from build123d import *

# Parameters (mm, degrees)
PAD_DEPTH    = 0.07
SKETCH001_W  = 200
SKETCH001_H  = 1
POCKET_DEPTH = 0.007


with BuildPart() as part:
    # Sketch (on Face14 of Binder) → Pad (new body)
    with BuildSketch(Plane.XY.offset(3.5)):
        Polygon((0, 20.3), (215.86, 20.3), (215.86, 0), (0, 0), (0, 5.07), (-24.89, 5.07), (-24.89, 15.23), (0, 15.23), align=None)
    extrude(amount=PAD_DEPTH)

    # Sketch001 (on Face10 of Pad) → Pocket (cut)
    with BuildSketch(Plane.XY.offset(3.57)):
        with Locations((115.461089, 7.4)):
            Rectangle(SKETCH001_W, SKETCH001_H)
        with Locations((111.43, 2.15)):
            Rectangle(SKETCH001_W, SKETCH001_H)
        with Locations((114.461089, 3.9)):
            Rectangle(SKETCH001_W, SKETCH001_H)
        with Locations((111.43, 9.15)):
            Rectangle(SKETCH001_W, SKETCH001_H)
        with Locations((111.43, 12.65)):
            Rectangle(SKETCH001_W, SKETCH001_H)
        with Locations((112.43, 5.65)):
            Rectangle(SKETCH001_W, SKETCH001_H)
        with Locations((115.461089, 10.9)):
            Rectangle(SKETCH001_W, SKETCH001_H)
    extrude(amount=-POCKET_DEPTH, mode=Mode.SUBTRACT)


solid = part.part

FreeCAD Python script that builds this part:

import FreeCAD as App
import Part
import Sketcher
from FreeCAD import Vector


def add_polygon(sketch, points):
    """Adds a closed chain of lines whose ends are joined by coincident constraints."""
    first, n = sketch.GeometryCount, len(points)
    for a, b in zip(points, points[1:] + points[:1]):
        sketch.addGeometry(Part.LineSegment(App.Vector(*a, 0), App.Vector(*b, 0)), False)
    for i in range(n):
        sketch.addConstraint(Sketcher.Constraint("Coincident", first + i, 2, first + (i + 1) % n, 1))

doc = App.newDocument("Part")
body = doc.addObject("PartDesign::Body", "Body")

sketch1 = doc.addObject("Sketcher::SketchObject", "Sketch")
body.addObject(sketch1)
sketch1.AttachmentSupport = (doc.XY_Plane, [""])
sketch1.MapMode = "FlatFace"
sketch1.AttachmentOffset = App.Placement(Vector(0, 0, 3.5), App.Rotation())
add_polygon(sketch1, [(215.86, 20.3), (0, 20.3), (0, 15.23), (-24.89, 15.23), (-24.89, 5.07), (0, 5.07), (0, 0), (215.86, 0)])
sketch1.addConstraint([
    Sketcher.Constraint("Horizontal", 0),
    Sketcher.Constraint("Vertical", 1),
    Sketcher.Constraint("Horizontal", 2),
    Sketcher.Constraint("Vertical", 3),
    Sketcher.Constraint("Horizontal", 4),
    Sketcher.Constraint("Vertical", 5),
    Sketcher.Constraint("Horizontal", 6),
    Sketcher.Constraint("Vertical", 7),
    Sketcher.Constraint("Coincident", 5, 2, -1, 1),
    Sketcher.Constraint("PointOnObject", 0, 2, -2),
    Sketcher.Constraint("Equal", 1, 5),
    Sketcher.Constraint("DistanceY", 7, 1, 7, 2, 20.3),
    Sketcher.Constraint("DistanceX", 0, 2, 0, 1, 215.86),
    Sketcher.Constraint("DistanceX", 2, 2, 2, 1, 24.89),
    Sketcher.Constraint("DistanceY", 1, 2, 1, 1, 5.07),
])
pad1 = doc.addObject("PartDesign::Pad", "Pad")
body.addObject(pad1)
pad1.Profile = sketch1
pad1.Length = 0.07

sketch2 = doc.addObject("Sketcher::SketchObject", "Sketch001")
body.addObject(sketch2)
sketch2.AttachmentSupport = (doc.XY_Plane, [""])
sketch2.MapMode = "FlatFace"
sketch2.AttachmentOffset = App.Placement(Vector(0, 0, 3.57), App.Rotation())
add_polygon(sketch2, [(15.461089, 7.9), (15.461089, 6.9), (215.461089, 6.9), (215.461089, 7.9)])
add_polygon(sketch2, [(11.43, 2.65), (11.43, 1.65), (211.43, 1.65), (211.43, 2.65)])
add_polygon(sketch2, [(14.461089, 4.4), (14.461089, 3.4), (214.461089, 3.4), (214.461089, 4.4)])
add_polygon(sketch2, [(11.43, 9.65), (11.43, 8.65), (211.43, 8.65), (211.43, 9.65)])
add_polygon(sketch2, [(11.43, 13.15), (11.43, 12.15), (211.43, 12.15), (211.43, 13.15)])
add_polygon(sketch2, [(12.43, 6.15), (12.43, 5.15), (212.43, 5.15), (212.43, 6.15)])
add_polygon(sketch2, [(15.461089, 11.4), (15.461089, 10.4), (215.461089, 10.4), (215.461089, 11.4)])
sketch2.addConstraint([
    Sketcher.Constraint("Vertical", 0),
    Sketcher.Constraint("Horizontal", 1),
    Sketcher.Constraint("Vertical", 2),
    Sketcher.Constraint("Horizontal", 3),
    Sketcher.Constraint("Vertical", 4),
    Sketcher.Constraint("Horizontal", 5),
    Sketcher.Constraint("Vertical", 6),
    Sketcher.Constraint("Horizontal", 7),
    Sketcher.Constraint("Vertical", 8),
    Sketcher.Constraint("Horizontal", 9),
    Sketcher.Constraint("Vertical", 10),
    Sketcher.Constraint("Horizontal", 11),
    Sketcher.Constraint("Vertical", 12),
    Sketcher.Constraint("Horizontal", 13),
    Sketcher.Constraint("Vertical", 14),
    Sketcher.Constraint("Horizontal", 15),
    Sketcher.Constraint("Vertical", 16),
    Sketcher.Constraint("Horizontal", 17),
    Sketcher.Constraint("Vertical", 18),
    Sketcher.Constraint("Horizontal", 19),
    Sketcher.Constraint("Vertical", 20),
    Sketcher.Constraint("Horizontal", 21),
    Sketcher.Constraint("Vertical", 22),
    Sketcher.Constraint("Horizontal", 23),
    Sketcher.Constraint("Vertical", 24),
    Sketcher.Constraint("Horizontal", 25),
    Sketcher.Constraint("Vertical", 26),
    Sketcher.Constraint("Horizontal", 27),
    Sketcher.Constraint("Vertical", 7, 2, 12, 2),
    Sketcher.Constraint("Vertical", 6, 2, 13, 2),
    Sketcher.Constraint("Vertical", 15, 2, 16, 2),
    Sketcher.Constraint("Vertical", 14, 2, 17, 2),
    Sketcher.Constraint("Vertical", 3, 2, 24, 2),
    Sketcher.Constraint("Vertical", 2, 2, 25, 2),
    Sketcher.Constraint("Equal", 3, 5),
    Sketcher.Constraint("Equal", 7, 9),
    Sketcher.Constraint("Equal", 19, 21),
    Sketcher.Constraint("Equal", 2, 4),
    Sketcher.Constraint("Equal", 6, 8),
    Sketcher.Constraint("Equal", 10, 12),
    Sketcher.Constraint("Equal", 14, 16),
    Sketcher.Constraint("Equal", 18, 20),
    Sketcher.Constraint("Equal", 22, 24),
    Sketcher.Constraint("DistanceX", 1, 1, 1, 2, 200.0),
    Sketcher.Constraint("DistanceY", 0, 2, 0, 1, 1.0),
    Sketcher.Constraint("DistanceX", 8, 2, 0, 2, 1.0),
    Sketcher.Constraint("DistanceY", 7, 2, 12, 2, 6.0),
    Sketcher.Constraint("DistanceX", 7, 2, 20, 2, 1.0),
    Sketcher.Constraint("DistanceY", -1, 1, 0, 2, 6.9),
    Sketcher.Constraint("DistanceY", -1, 1, 8, 2, 3.4),
    Sketcher.Constraint("DistanceY", -1, 1, 24, 2, 10.4),
    Sketcher.Constraint("DistanceY", 15, 2, 16, 2, 2.5),
    Sketcher.Constraint("DistanceY", 7, 2, 20, 2, 2.5),
    Sketcher.Constraint("DistanceX", -1, 1, 4, 2, 11.43),
    Sketcher.Constraint("DistanceY", -1, 1, 4, 2, 1.65),
    Sketcher.Constraint("DistanceX", -1, 1, 0, 2, 15.461089),
])
pocket1 = doc.addObject("PartDesign::Pocket", "Pocket")
body.addObject(pocket1)
pocket1.Profile = sketch2
pocket1.Length = 0.007

doc.recompute()
